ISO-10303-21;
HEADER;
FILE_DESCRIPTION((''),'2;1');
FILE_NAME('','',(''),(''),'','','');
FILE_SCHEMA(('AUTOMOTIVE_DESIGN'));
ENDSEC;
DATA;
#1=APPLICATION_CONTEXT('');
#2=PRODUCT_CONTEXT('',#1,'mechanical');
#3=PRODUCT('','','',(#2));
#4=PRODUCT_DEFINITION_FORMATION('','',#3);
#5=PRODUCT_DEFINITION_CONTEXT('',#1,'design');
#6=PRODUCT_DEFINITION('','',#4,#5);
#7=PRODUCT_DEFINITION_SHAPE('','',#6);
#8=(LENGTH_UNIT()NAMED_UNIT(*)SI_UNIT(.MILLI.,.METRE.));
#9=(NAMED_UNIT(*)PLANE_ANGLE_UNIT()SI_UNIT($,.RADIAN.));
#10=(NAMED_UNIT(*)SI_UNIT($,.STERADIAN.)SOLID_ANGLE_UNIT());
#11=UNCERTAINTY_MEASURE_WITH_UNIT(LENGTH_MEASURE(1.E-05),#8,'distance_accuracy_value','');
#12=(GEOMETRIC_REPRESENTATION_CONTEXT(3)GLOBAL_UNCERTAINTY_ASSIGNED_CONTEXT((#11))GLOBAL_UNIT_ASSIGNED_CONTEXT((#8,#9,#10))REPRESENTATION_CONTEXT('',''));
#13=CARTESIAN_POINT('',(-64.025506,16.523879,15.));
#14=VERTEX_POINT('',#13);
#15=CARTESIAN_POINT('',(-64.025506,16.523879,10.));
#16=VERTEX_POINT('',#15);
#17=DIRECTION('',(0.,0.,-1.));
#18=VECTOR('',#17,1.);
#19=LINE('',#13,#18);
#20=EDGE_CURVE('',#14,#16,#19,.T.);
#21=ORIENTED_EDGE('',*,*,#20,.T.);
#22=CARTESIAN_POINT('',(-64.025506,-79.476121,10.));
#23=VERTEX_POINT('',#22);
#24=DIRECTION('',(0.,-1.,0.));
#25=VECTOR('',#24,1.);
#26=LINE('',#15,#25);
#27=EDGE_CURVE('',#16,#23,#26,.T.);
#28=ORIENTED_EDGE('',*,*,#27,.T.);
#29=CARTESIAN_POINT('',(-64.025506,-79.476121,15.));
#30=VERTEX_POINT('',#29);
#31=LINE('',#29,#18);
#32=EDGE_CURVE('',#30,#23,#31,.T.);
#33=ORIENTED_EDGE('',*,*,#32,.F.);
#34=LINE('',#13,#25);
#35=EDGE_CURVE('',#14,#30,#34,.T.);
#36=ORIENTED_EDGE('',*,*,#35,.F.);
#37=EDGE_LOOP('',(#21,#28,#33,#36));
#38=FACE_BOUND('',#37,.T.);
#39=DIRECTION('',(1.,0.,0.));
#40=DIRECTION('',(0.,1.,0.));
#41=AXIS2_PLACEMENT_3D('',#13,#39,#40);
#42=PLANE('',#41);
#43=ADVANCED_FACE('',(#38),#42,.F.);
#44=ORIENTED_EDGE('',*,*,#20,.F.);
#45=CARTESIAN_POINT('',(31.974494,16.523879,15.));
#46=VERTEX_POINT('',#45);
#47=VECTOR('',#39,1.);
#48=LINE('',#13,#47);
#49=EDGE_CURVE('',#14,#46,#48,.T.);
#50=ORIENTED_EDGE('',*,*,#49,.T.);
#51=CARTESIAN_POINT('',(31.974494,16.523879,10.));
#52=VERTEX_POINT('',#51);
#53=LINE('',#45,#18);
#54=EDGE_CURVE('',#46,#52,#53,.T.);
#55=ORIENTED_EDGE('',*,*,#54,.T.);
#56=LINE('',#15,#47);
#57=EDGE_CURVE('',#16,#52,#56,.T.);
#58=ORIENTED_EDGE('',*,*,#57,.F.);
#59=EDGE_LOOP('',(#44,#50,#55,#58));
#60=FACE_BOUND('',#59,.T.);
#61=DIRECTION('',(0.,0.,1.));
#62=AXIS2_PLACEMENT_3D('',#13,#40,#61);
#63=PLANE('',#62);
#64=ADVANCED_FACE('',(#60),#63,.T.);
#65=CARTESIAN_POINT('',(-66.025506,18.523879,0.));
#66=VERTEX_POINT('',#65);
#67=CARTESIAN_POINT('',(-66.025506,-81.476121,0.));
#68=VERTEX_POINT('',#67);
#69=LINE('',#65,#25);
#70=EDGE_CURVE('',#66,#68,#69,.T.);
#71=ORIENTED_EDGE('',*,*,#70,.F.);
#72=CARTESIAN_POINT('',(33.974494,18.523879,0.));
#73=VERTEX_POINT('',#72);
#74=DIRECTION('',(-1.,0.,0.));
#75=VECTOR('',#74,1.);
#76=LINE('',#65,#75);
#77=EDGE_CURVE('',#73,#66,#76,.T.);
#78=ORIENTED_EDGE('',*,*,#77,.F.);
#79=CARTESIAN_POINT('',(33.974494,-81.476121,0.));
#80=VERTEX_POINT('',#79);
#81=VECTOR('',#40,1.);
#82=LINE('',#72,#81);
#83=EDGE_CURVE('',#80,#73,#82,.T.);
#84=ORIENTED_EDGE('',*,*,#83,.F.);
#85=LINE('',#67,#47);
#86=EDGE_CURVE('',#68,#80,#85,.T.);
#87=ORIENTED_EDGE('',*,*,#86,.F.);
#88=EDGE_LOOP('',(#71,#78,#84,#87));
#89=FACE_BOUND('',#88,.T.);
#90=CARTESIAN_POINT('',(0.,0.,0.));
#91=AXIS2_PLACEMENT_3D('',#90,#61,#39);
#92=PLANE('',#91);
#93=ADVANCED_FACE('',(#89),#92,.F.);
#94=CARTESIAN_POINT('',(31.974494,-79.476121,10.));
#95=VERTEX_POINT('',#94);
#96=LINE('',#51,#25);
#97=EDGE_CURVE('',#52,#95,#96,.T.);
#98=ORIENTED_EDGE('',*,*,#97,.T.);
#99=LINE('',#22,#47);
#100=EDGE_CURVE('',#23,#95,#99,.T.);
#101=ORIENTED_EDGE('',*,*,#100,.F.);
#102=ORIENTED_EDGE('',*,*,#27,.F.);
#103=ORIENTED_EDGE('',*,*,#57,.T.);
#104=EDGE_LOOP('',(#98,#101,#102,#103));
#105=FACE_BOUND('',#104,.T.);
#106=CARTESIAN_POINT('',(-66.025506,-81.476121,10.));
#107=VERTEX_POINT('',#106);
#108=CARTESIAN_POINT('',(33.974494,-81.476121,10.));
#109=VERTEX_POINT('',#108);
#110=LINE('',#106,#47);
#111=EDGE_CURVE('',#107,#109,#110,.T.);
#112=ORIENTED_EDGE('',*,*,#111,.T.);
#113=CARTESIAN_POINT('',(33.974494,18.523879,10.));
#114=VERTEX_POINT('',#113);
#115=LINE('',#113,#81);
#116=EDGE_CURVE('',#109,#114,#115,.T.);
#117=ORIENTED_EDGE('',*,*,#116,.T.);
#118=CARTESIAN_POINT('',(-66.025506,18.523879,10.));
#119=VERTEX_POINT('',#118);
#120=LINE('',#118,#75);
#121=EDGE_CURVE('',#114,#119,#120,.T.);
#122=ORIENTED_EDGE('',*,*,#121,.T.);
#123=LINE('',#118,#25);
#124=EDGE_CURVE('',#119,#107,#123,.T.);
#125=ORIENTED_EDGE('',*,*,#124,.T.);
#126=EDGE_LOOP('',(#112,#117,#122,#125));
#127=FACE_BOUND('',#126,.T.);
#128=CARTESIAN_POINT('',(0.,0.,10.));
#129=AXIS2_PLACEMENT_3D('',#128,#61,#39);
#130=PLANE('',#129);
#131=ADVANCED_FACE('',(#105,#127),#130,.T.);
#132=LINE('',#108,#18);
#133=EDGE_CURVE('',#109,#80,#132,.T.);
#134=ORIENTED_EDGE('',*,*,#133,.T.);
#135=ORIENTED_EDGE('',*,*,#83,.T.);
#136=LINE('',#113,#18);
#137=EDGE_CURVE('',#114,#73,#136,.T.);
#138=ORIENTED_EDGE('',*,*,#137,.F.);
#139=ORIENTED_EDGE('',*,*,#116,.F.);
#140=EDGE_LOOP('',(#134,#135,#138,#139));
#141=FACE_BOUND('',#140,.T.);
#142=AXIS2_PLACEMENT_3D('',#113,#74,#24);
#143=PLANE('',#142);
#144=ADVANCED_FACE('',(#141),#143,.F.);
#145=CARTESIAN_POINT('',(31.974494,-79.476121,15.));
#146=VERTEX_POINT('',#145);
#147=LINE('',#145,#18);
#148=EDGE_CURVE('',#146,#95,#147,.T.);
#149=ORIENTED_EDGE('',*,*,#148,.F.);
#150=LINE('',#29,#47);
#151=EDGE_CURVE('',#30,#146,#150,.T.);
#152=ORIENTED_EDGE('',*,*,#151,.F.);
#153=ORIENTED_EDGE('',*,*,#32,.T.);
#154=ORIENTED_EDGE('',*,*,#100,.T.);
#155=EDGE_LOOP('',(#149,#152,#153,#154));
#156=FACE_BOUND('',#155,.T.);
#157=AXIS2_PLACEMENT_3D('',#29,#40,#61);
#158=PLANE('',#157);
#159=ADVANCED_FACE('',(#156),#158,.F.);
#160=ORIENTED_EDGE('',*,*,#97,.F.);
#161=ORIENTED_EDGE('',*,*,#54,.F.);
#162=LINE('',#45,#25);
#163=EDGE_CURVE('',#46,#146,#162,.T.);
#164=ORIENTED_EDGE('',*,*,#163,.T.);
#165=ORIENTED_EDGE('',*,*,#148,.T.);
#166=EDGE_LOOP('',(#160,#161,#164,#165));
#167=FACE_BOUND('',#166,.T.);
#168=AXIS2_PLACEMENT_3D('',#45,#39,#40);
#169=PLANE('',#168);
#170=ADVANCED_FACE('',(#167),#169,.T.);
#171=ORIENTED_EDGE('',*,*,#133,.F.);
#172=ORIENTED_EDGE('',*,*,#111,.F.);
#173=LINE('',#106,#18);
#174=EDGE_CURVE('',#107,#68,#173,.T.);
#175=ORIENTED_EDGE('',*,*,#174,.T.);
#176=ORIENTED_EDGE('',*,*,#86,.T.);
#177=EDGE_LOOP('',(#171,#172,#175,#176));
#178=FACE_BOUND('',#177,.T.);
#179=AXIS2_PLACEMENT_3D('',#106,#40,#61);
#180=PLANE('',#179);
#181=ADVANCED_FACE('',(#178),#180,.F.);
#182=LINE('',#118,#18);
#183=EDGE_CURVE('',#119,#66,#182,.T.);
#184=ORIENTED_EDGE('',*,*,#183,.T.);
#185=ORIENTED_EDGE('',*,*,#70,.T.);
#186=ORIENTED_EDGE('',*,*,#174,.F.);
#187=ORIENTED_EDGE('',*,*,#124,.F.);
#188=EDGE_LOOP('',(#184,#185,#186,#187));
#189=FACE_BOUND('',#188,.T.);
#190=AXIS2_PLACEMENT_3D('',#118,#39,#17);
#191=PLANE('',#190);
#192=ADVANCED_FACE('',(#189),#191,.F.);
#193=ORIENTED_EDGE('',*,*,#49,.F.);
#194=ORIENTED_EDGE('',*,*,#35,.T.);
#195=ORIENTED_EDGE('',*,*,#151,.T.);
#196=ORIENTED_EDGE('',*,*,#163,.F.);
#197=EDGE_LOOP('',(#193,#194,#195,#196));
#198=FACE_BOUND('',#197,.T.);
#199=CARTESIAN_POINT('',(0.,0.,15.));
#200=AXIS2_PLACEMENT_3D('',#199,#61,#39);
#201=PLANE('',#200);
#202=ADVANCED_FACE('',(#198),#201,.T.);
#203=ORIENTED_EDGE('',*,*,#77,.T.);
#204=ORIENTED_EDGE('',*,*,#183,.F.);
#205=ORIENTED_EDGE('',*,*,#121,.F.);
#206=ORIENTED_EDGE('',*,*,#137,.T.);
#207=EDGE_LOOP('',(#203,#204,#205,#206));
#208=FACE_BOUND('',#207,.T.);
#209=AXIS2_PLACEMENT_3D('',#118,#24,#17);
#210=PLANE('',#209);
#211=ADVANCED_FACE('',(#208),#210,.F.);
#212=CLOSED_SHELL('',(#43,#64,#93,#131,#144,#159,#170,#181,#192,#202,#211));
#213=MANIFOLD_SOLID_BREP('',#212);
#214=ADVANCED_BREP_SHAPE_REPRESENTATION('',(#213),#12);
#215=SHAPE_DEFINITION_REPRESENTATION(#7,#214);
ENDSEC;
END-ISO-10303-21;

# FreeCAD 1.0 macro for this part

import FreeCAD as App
import Part
import Sketcher


def add_polygon(sketch, points):
    """Adds a closed chain of lines whose ends are joined by coincident constraints."""
    first, n = sketch.GeometryCount, len(points)
    for a, b in zip(points, points[1:] + points[:1]):
        sketch.addGeometry(Part.LineSegment(App.Vector(*a, 0), App.Vector(*b, 0)), False)
    for i in range(n):
        sketch.addConstraint(Sketcher.Constraint("Coincident", first + i, 2, first + (i + 1) % n, 1))

doc = App.newDocument("Part")
body = doc.addObject("PartDesign::Body", "Body")

# Sketch on XY plane
sketch1 = body.newObject("Sketcher::SketchObject", "Sketch")
sketch1.AttachmentSupport = (doc.getObject("XY_Plane"), [""])
sketch1.MapMode = "FlatFace"
add_polygon(sketch1, [(-66, 19), (-66, -81), (34, -81), (34, 19)])  # lines 0-3
sketch1.addConstraint(Sketcher.Constraint("Vertical", 0))
sketch1.addConstraint(Sketcher.Constraint("Horizontal", 1))
sketch1.addConstraint(Sketcher.Constraint("Vertical", 2))
sketch1.addConstraint(Sketcher.Constraint("Horizontal", 3))
sketch1.addConstraint(Sketcher.Constraint("Equal", 3, 0))
sketch1.addConstraint(Sketcher.Constraint("DistanceX", 1, 1, 1, 2, 100.0))
sketch1.addConstraint(Sketcher.Constraint("DistanceY", 0, 2, -1, 1, 81.476121))
sketch1.addConstraint(Sketcher.Constraint("DistanceX", 0, 2, -1, 1, 66.025506))
pad1 = body.newObject("PartDesign::Pad", "Pad")
pad1.Profile = sketch1
pad1.Length = 10

# Sketch on XY plane
sketch2 = body.newObject("Sketcher::SketchObject", "Sketch001")
sketch2.AttachmentSupport = (doc.getObject("XY_Plane"), [""])
sketch2.MapMode = "FlatFace"
sketch2.AttachmentOffset = App.Placement(App.Vector(0, 0, 10), App.Rotation())
add_polygon(sketch2, [(-64, 17), (-64, -79), (32, -79), (32, 17)])  # lines 0-3
sketch2.addConstraint(Sketcher.Constraint("Vertical", 0))
sketch2.addConstraint(Sketcher.Constraint("Horizontal", 1))
sketch2.addConstraint(Sketcher.Constraint("Vertical", 2))
sketch2.addConstraint(Sketcher.Constraint("Horizontal", 3))
sketch2.addConstraint(Sketcher.Constraint("Equal", 3, 0))
sketch2.addConstraint(Sketcher.Constraint("DistanceX", 1, 1, 1, 2, 96.0))
sketch2.addConstraint(Sketcher.Constraint("DistanceY", 0, 2, -1, 1, 79.476121))
sketch2.addConstraint(Sketcher.Constraint("DistanceX", 0, 2, -1, 1, 64.025506))
pad2 = body.newObject("PartDesign::Pad", "Pad001")
pad2.Profile = sketch2
pad2.Length = 5

doc.recompute()
